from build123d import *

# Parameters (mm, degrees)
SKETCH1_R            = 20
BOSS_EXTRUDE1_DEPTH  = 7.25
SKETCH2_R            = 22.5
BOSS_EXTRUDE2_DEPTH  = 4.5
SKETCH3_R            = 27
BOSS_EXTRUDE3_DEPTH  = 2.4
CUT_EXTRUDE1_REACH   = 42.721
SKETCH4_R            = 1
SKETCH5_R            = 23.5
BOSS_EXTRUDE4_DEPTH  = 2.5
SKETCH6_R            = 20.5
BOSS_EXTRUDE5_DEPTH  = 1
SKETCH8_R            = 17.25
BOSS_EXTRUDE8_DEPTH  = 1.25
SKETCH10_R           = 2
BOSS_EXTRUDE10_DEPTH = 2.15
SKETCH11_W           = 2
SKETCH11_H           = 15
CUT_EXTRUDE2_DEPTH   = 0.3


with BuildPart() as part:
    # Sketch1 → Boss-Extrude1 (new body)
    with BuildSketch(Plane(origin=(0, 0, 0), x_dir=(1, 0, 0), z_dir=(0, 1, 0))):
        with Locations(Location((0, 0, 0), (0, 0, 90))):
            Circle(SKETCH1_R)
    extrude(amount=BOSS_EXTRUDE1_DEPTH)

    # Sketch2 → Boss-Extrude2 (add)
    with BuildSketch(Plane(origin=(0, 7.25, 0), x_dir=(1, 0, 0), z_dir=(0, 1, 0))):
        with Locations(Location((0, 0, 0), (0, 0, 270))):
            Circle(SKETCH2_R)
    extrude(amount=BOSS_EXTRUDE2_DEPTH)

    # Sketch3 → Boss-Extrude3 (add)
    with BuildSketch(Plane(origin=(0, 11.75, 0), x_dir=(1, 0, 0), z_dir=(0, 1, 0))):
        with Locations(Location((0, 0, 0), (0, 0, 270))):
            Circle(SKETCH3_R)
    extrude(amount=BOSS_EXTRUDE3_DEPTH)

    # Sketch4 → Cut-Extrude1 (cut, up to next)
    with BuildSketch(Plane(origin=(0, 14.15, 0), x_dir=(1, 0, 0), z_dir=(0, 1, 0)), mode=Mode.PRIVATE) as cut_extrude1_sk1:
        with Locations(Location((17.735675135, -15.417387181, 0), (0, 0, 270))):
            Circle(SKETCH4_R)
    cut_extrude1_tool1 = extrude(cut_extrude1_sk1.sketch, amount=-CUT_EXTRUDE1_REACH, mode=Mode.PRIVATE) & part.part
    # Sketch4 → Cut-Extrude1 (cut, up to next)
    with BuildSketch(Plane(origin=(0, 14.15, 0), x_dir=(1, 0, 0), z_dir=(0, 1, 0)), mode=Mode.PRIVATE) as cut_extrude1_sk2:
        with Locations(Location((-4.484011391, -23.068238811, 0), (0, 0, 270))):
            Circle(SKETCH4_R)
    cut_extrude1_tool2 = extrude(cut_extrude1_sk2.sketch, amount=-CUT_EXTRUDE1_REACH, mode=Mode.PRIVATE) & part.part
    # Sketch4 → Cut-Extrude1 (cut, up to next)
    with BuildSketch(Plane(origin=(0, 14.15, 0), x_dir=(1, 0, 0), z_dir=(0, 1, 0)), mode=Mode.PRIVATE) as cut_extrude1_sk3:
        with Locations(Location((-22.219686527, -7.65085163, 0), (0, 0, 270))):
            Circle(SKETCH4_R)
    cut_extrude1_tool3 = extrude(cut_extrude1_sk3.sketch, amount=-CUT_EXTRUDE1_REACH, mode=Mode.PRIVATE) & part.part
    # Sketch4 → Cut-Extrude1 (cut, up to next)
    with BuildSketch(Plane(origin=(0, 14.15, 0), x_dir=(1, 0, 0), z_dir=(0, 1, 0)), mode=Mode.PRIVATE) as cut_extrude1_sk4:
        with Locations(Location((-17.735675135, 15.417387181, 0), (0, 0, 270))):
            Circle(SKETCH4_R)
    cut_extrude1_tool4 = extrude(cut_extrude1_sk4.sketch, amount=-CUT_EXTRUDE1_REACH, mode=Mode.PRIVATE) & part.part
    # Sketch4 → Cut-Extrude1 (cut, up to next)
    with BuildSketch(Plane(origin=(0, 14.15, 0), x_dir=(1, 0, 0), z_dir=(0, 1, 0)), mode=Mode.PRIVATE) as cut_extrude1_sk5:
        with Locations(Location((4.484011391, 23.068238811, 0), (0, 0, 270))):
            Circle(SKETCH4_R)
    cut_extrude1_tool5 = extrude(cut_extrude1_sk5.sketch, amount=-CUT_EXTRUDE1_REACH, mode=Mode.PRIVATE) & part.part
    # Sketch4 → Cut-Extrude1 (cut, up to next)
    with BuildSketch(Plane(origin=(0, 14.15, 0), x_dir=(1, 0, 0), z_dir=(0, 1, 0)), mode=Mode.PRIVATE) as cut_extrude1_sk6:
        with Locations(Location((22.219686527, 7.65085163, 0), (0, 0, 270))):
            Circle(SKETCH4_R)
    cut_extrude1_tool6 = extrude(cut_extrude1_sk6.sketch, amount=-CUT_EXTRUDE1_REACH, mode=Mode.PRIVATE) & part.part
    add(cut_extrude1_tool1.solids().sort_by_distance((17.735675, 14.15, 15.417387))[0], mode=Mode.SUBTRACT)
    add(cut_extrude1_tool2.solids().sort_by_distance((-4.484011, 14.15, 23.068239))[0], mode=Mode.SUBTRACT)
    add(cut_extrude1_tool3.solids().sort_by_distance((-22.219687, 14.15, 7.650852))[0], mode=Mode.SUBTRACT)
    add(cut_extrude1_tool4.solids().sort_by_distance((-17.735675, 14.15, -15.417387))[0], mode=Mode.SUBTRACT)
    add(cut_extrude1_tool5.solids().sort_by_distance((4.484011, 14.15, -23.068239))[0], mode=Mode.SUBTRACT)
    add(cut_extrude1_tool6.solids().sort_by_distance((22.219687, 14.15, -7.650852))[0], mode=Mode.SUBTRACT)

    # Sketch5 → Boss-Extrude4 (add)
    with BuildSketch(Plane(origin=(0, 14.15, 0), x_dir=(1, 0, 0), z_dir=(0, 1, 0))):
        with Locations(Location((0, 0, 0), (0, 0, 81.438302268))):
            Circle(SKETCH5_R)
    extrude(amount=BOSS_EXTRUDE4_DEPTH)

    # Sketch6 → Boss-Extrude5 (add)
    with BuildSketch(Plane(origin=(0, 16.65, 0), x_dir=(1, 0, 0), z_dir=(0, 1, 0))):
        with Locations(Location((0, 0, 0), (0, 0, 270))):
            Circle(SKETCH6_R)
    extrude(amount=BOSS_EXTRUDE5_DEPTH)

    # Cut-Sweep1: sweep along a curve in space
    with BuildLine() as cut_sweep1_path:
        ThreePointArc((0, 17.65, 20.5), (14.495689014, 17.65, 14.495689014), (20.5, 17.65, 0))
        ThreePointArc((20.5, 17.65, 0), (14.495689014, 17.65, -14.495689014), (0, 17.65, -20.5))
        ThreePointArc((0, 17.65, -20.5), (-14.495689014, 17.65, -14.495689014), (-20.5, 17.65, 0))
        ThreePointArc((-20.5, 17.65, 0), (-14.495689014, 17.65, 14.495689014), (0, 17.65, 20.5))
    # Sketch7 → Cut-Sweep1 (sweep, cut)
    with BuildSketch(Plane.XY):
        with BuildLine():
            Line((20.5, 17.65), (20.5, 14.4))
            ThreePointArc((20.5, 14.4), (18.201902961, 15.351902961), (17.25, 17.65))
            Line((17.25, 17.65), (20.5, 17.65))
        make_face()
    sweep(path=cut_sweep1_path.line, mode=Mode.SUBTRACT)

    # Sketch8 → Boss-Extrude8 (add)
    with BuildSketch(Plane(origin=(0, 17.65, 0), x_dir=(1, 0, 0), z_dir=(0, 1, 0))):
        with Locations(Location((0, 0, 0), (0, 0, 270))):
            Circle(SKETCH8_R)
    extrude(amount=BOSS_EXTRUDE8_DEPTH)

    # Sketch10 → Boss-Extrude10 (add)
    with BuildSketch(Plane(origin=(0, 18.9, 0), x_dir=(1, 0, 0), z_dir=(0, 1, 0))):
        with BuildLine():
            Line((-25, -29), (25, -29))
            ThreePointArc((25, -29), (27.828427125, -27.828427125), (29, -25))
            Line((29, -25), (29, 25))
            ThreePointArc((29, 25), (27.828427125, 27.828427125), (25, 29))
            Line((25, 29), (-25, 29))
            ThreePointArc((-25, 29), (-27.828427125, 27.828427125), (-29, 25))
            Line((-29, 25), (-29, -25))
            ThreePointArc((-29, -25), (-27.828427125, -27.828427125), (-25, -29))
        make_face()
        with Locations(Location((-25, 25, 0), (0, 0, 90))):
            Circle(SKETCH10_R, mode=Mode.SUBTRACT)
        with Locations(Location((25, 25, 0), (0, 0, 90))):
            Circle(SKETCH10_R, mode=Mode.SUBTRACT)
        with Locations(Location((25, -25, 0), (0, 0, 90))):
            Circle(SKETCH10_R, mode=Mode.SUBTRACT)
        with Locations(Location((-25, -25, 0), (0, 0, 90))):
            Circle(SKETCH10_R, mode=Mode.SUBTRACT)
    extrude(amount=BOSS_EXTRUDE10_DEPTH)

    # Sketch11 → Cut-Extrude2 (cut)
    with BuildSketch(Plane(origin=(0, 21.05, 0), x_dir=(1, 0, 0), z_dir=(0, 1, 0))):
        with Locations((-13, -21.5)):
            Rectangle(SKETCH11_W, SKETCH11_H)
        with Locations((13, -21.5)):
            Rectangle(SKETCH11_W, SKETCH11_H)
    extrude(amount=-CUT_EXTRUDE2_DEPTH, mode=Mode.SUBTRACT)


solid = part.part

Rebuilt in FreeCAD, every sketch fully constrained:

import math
import FreeCAD as App
import Part
import Sketcher
from FreeCAD import Vector

doc = App.newDocument("Part")
body = doc.addObject("PartDesign::Body", "Body")

sketch1 = body.newObject("Sketcher::SketchObject", "Sketch")
sketch1.AttachmentSupport = (doc.getObject("XZ_Plane"), [""])
sketch1.MapMode = "FlatFace"
sketch1.addGeometry(Part.Circle(Vector(0, 0, 0), Vector(0, 0, 1), 20), False)
sketch1.addConstraint([
    Sketcher.Constraint("Coincident", 0, 3, -1, 1),
    Sketcher.Constraint("Diameter", 0, 40.0),
])
pad1 = body.newObject("PartDesign::Pad", "Pad")
pad1.Profile = sketch1
pad1.Length = 7.25
pad1.Reversed = True

sketch2 = body.newObject("Sketcher::SketchObject", "Sketch001")
sketch2.AttachmentSupport = (doc.getObject("XZ_Plane"), [""])
sketch2.MapMode = "FlatFace"
sketch2.AttachmentOffset = App.Placement(Vector(0, 0, -7.25), App.Rotation())
sketch2.addGeometry(Part.Circle(Vector(0, 0, 0), Vector(0, 0, 1), 22), False)
sketch2.addConstraint([
    Sketcher.Constraint("Coincident", 0, 3, -1, 1),
    Sketcher.Constraint("Diameter", 0, 45.0),
])
pad2 = body.newObject("PartDesign::Pad", "Pad001")
pad2.Profile = sketch2
pad2.Length = 4.5
pad2.Reversed = True

sketch3 = body.newObject("Sketcher::SketchObject", "Sketch002")
sketch3.AttachmentSupport = (doc.getObject("XZ_Plane"), [""])
sketch3.MapMode = "FlatFace"
sketch3.AttachmentOffset = App.Placement(Vector(0, 0, -11.75), App.Rotation())
sketch3.addGeometry(Part.Circle(Vector(0, 0, 0), Vector(0, 0, 1), 27), False)
sketch3.addConstraint([
    Sketcher.Constraint("Coincident", 0, 3, -1, 1),
    Sketcher.Constraint("Diameter", 0, 54.0),
])
pad3 = body.newObject("PartDesign::Pad", "Pad002")
pad3.Profile = sketch3
pad3.Length = 2.4
pad3.Reversed = True

sketch4 = body.newObject("Sketcher::SketchObject", "Sketch003")
sketch4.AttachmentSupport = (doc.getObject("XZ_Plane"), [""])
sketch4.MapMode = "FlatFace"
sketch4.AttachmentOffset = App.Placement(Vector(0, 0, -14.15), App.Rotation())
sketch4.addGeometry(Part.Circle(Vector(17.7, 15.4, 0), Vector(0, 0, 1), 1), False)
sketch4.addConstraint([
    Sketcher.Constraint("Diameter", 0, 2.0),
    Sketcher.Constraint("DistanceX", -1, 1, 0, 3, 17.735675),
    Sketcher.Constraint("DistanceY", -1, 1, 0, 3, 15.417387),
])
pocket1 = body.newObject("PartDesign::Pocket", "Pocket")
pocket1.Profile = sketch4
pocket1.Type = "UpToFirst"
pocket1.Reversed = True

sketch5 = body.newObject("Sketcher::SketchObject", "Sketch004")
sketch5.AttachmentSupport = (doc.getObject("XZ_Plane"), [""])
sketch5.MapMode = "FlatFace"
sketch5.AttachmentOffset = App.Placement(Vector(0, 0, -14.15), App.Rotation())
sketch5.addGeometry(Part.Circle(Vector(-4.5, 23.1, 0), Vector(0, 0, 1), 1), False)
sketch5.addConstraint([
    Sketcher.Constraint("Diameter", 0, 2.0),
    Sketcher.Constraint("DistanceX", 0, 3, -1, 1, 4.484011),
    Sketcher.Constraint("DistanceY", -1, 1, 0, 3, 23.068239),
])
pocket2 = body.newObject("PartDesign::Pocket", "Pocket001")
pocket2.Profile = sketch5
pocket2.Type = "UpToFirst"
pocket2.Reversed = True

sketch6 = body.newObject("Sketcher::SketchObject", "Sketch005")
sketch6.AttachmentSupport = (doc.getObject("XZ_Plane"), [""])
sketch6.MapMode = "FlatFace"
sketch6.AttachmentOffset = App.Placement(Vector(0, 0, -14.15), App.Rotation())
sketch6.addGeometry(Part.Circle(Vector(-22.2, 7.7, 0), Vector(0, 0, 1), 1), False)
sketch6.addConstraint([
    Sketcher.Constraint("Diameter", 0, 2.0),
    Sketcher.Constraint("DistanceY", -1, 1, 0, 3, 7.650852),
    Sketcher.Constraint("DistanceX", 0, 3, -1, 1, 22.219687),
])
pocket3 = body.newObject("PartDesign::Pocket", "Pocket002")
pocket3.Profile = sketch6
pocket3.Type = "UpToFirst"
pocket3.Reversed = True

sketch7 = body.newObject("Sketcher::SketchObject", "Sketch006")
sketch7.AttachmentSupport = (doc.getObject("XZ_Plane"), [""])
sketch7.MapMode = "FlatFace"
sketch7.AttachmentOffset = App.Placement(Vector(0, 0, -14.15), App.Rotation())
sketch7.addGeometry(Part.Circle(Vector(-17.7, -15.4, 0), Vector(0, 0, 1), 1), False)
sketch7.addConstraint([
    Sketcher.Constraint("Diameter", 0, 2.0),
    Sketcher.Constraint("DistanceX", 0, 3, -1, 1, 17.735675),
    Sketcher.Constraint("DistanceY", 0, 3, -1, 1, 15.417387),
])
pocket4 = body.newObject("PartDesign::Pocket", "Pocket003")
pocket4.Profile = sketch7
pocket4.Type = "UpToFirst"
pocket4.Reversed = True

sketch8 = body.newObject("Sketcher::SketchObject", "Sketch007")
sketch8.AttachmentSupport = (doc.getObject("XZ_Plane"), [""])
sketch8.MapMode = "FlatFace"
sketch8.AttachmentOffset = App.Placement(Vector(0, 0, -14.15), App.Rotation())
sketch8.addGeometry(Part.Circle(Vector(4.5, -23.1, 0), Vector(0, 0, 1), 1), False)
sketch8.addConstraint([
    Sketcher.Constraint("Diameter", 0, 2.0),
    Sketcher.Constraint("DistanceX", -1, 1, 0, 3, 4.484011),
    Sketcher.Constraint("DistanceY", 0, 3, -1, 1, 23.068239),
])
pocket5 = body.newObject("PartDesign::Pocket", "Pocket004")
pocket5.Profile = sketch8
pocket5.Type = "UpToFirst"
pocket5.Reversed = True

sketch9 = body.newObject("Sketcher::SketchObject", "Sketch008")
sketch9.AttachmentSupport = (doc.getObject("XZ_Plane"), [""])
sketch9.MapMode = "FlatFace"
sketch9.AttachmentOffset = App.Placement(Vector(0, 0, -14.15), App.Rotation())
sketch9.addGeometry(Part.Circle(Vector(22.2, -7.7, 0), Vector(0, 0, 1), 1), False)
sketch9.addConstraint([
    Sketcher.Constraint("Diameter", 0, 2.0),
    Sketcher.Constraint("DistanceY", 0, 3, -1, 1, 7.650852),
    Sketcher.Constraint("DistanceX", -1, 1, 0, 3, 22.219687),
])
pocket6 = body.newObject("PartDesign::Pocket", "Pocket005")
pocket6.Profile = sketch9
pocket6.Type = "UpToFirst"
pocket6.Reversed = True

sketch10 = body.newObject("Sketcher::SketchObject", "Sketch009")
sketch10.AttachmentSupport = (doc.getObject("XZ_Plane"), [""])
sketch10.MapMode = "FlatFace"
sketch10.AttachmentOffset = App.Placement(Vector(0, 0, -14.15), App.Rotation())
sketch10.addGeometry(Part.Circle(Vector(0, 0, 0), Vector(0, 0, 1), 24), False)
sketch10.addConstraint([
    Sketcher.Constraint("Coincident", 0, 3, -1, 1),
    Sketcher.Constraint("Diameter", 0, 47.0),
])
pad4 = body.newObject("PartDesign::Pad", "Pad003")
pad4.Profile = sketch10
pad4.Length = 2.5
pad4.Reversed = True

sketch11 = body.newObject("Sketcher::SketchObject", "Sketch010")
sketch11.AttachmentSupport = (doc.getObject("XZ_Plane"), [""])
sketch11.MapMode = "FlatFace"
sketch11.AttachmentOffset = App.Placement(Vector(0, 0, -16.65), App.Rotation())
sketch11.addGeometry(Part.Circle(Vector(0, 0, 0), Vector(0, 0, 1), 20), False)
sketch11.addConstraint([
    Sketcher.Constraint("Coincident", 0, 3, -1, 1),
    Sketcher.Constraint("Diameter", 0, 41.0),
])
pad5 = body.newObject("PartDesign::Pad", "Pad004")
pad5.Profile = sketch11
pad5.Length = 1
pad5.Reversed = True

sketch12 = body.newObject("Sketcher::SketchObject", "Sketch011")
sketch12.AttachmentSupport = (doc.getObject("XY_Plane"), [""])
sketch12.MapMode = "FlatFace"
sketch12.addGeometry([
    Part.LineSegment(Vector(20.5, 14.4, 0), Vector(20.5, 17.6, 0)),
    Part.LineSegment(Vector(20.5, 17.6, 0), Vector(17.2, 17.6, 0)),
    Part.ArcOfCircle(Part.Circle(Vector(20.5, 17.6, 0), Vector(0, 0, 1), 3.2), math.radians(180), math.radians(270)),
], False)
sketch12.addConstraint([
    Sketcher.Constraint("Coincident", 0, 2, 1, 1),
    Sketcher.Constraint("Coincident", 1, 2, 2, 1),
    Sketcher.Constraint("Coincident", 2, 2, 0, 1),
    Sketcher.Constraint("Vertical", 0),
    Sketcher.Constraint("Horizontal", 1),
    Sketcher.Constraint("Coincident", 0, 2, 2, 3),
    Sketcher.Constraint("Radius", 2, 3.25),
    Sketcher.Constraint("DistanceX", -1, 1, 2, 3, 20.5),
    Sketcher.Constraint("DistanceY", -1, 1, 2, 2, 14.4),
])

sketch13 = body.newObject("Sketcher::SketchObject", "Sketch012")
sketch13.AttachmentSupport = (doc.getObject("XZ_Plane"), [""])
sketch13.MapMode = "FlatFace"
sketch13.AttachmentOffset = App.Placement(Vector(0, 0, -17.65), App.Rotation())
sketch13.addGeometry([
    Part.ArcOfCircle(Part.Circle(Vector(0, 0, 0), Vector(0, 0, 1), 21), math.radians(0), math.radians(90)),
    Part.ArcOfCircle(Part.Circle(Vector(0, 0, 0), Vector(0, 0, 1), 21), math.radians(-90), math.radians(0)),
    Part.ArcOfCircle(Part.Circle(Vector(0, 0, 0), Vector(0, 0, 1), 21), math.radians(-180), math.radians(-90)),
    Part.ArcOfCircle(Part.Circle(Vector(0, 0, 0), Vector(0, 0, 1), 21), math.radians(90), math.radians(180)),
], False)
sketch13.addConstraint([
    Sketcher.Constraint("Tangent", 0, 1, 1, 2),
    Sketcher.Constraint("Tangent", 1, 1, 2, 2),
    Sketcher.Constraint("Tangent", 2, 1, 3, 2),
    Sketcher.Constraint("Tangent", 3, 1, 0, 2),
    Sketcher.Constraint("Coincident", 0, 3, -1, 1),
    Sketcher.Constraint("Equal", 0, 1),
    Sketcher.Constraint("PointOnObject", 0, 1, -1),
    Sketcher.Constraint("PointOnObject", 1, 1, -2),
    Sketcher.Constraint("PointOnObject", 2, 1, -1),
    Sketcher.Constraint("PointOnObject", 3, 1, -2),
    Sketcher.Constraint("Radius", 0, 20.5),
])
doc.recompute()

subtractivepipe = body.newObject("PartDesign::SubtractivePipe", "SubtractivePipe")
subtractivepipe.Profile = sketch12
subtractivepipe.Spine = (sketch13, ["Edge1", "Edge2", "Edge3", "Edge4"])

sketch14 = body.newObject("Sketcher::SketchObject", "Sketch013")
sketch14.AttachmentSupport = (doc.getObject("XZ_Plane"), [""])
sketch14.MapMode = "FlatFace"
sketch14.AttachmentOffset = App.Placement(Vector(0, 0, -17.65), App.Rotation())
sketch14.addGeometry(Part.Circle(Vector(0, 0, 0), Vector(0, 0, 1), 17), False)
sketch14.addConstraint([
    Sketcher.Constraint("Coincident", 0, 3, -1, 1),
    Sketcher.Constraint("Diameter", 0, 34.5),
])
pad6 = body.newObject("PartDesign::Pad", "Pad005")
pad6.Profile = sketch14
pad6.Length = 1.25
pad6.Reversed = True

sketch15 = body.newObject("Sketcher::SketchObject", "Sketch014")
sketch15.AttachmentSupport = (doc.getObject("XZ_Plane"), [""])
sketch15.MapMode = "FlatFace"
sketch15.AttachmentOffset = App.Placement(Vector(0, 0, -18.9), App.Rotation())
sketch15.addGeometry([
    Part.LineSegment(Vector(-25, 29, 0), Vector(25, 29, 0)),
    Part.ArcOfCircle(Part.Circle(Vector(25, 25, 0), Vector(0, 0, 1), 4), math.radians(0), math.radians(90)),
    Part.LineSegment(Vector(29, 25, 0), Vector(29, -25, 0)),
    Part.ArcOfCircle(Part.Circle(Vector(25, -25, 0), Vector(0, 0, 1), 4), math.radians(-90), math.radians(0)),
    Part.LineSegment(Vector(25, -29, 0), Vector(-25, -29, 0)),
    Part.ArcOfCircle(Part.Circle(Vector(-25, -25, 0), Vector(0, 0, 1), 4), math.radians(180), math.radians(270)),
    Part.LineSegment(Vector(-29, -25, 0), Vector(-29, 25, 0)),
    Part.ArcOfCircle(Part.Circle(Vector(-25, 25, 0), Vector(0, 0, 1), 4), math.radians(90), math.radians(180)),
    Part.Circle(Vector(-25, 25, 0), Vector(0, 0, 1), 2),
    Part.Circle(Vector(25, 25, 0), Vector(0, 0, 1), 2),
    Part.Circle(Vector(-25, -25, 0), Vector(0, 0, 1), 2),
    Part.Circle(Vector(25, -25, 0), Vector(0, 0, 1), 2),
], False)
sketch15.addConstraint([
    Sketcher.Constraint("Tangent", 0, 2, 1, 2),
    Sketcher.Constraint("Tangent", 1, 1, 2, 1),
    Sketcher.Constraint("Tangent", 2, 2, 3, 2),
    Sketcher.Constraint("Tangent", 3, 1, 4, 1),
    Sketcher.Constraint("Tangent", 4, 2, 5, 2),
    Sketcher.Constraint("Tangent", 5, 1, 6, 1),
    Sketcher.Constraint("Tangent", 6, 2, 7, 2),
    Sketcher.Constraint("Tangent", 7, 1, 0, 1),
    Sketcher.Constraint("Horizontal", 0),
    Sketcher.Constraint("Vertical", 2),
    Sketcher.Constraint("Horizontal", 4),
    Sketcher.Constraint("Vertical", 6),
    Sketcher.Constraint("Coincident", 8, 3, 7, 3),
    Sketcher.Constraint("Coincident", 9, 3, 1, 3),
    Sketcher.Constraint("Coincident", 10, 3, 5, 3),
    Sketcher.Constraint("Coincident", 11, 3, 3, 3),
    Sketcher.Constraint("Equal", 1, 3),
    Sketcher.Constraint("Equal", 3, 5),
    Sketcher.Constraint("Equal", 5, 7),
    Sketcher.Constraint("Equal", 8, 9),
    Sketcher.Constraint("Equal", 9, 10),
    Sketcher.Constraint("Equal", 10, 11),
    Sketcher.Constraint("Symmetric", 1, 3, 5, 3, -1, 1),
    Sketcher.Constraint("Equal", 4, 2),
    Sketcher.Constraint("Diameter", 8, 4.0),
    Sketcher.Constraint("Radius", 1, 4.0),
    Sketcher.Constraint("DistanceX", 0, 1, 0, 2, 50.0),
])
pad7 = body.newObject("PartDesign::Pad", "Pad006")
pad7.Profile = sketch15
pad7.Length = 2.15
pad7.Reversed = True

sketch16 = body.newObject("Sketcher::SketchObject", "Sketch015")
sketch16.AttachmentSupport = (doc.getObject("XZ_Plane"), [""])
sketch16.MapMode = "FlatFace"
sketch16.AttachmentOffset = App.Placement(Vector(0, 0, -21.05), App.Rotation())
sketch16.addGeometry([
    Part.LineSegment(Vector(-14, 14, 0), Vector(-14, 29, 0)),
    Part.LineSegment(Vector(-14, 29, 0), Vector(-12, 29, 0)),
    Part.LineSegment(Vector(-12, 29, 0), Vector(-12, 14, 0)),
    Part.LineSegment(Vector(-12, 14, 0), Vector(-14, 14, 0)),
    Part.LineSegment(Vector(12, 14, 0), Vector(12, 29, 0)),
    Part.LineSegment(Vector(12, 29, 0), Vector(14, 29, 0)),
    Part.LineSegment(Vector(14, 29, 0), Vector(14, 14, 0)),
    Part.LineSegment(Vector(14, 14, 0), Vector(12, 14, 0)),
], False)
sketch16.addConstraint([
    Sketcher.Constraint("Coincident", 0, 2, 1, 1),
    Sketcher.Constraint("Coincident", 1, 2, 2, 1),
    Sketcher.Constraint("Coincident", 2, 2, 3, 1),
    Sketcher.Constraint("Coincident", 3, 2, 0, 1),
    Sketcher.Constraint("Coincident", 4, 2, 5, 1),
    Sketcher.Constraint("Coincident", 5, 2, 6, 1),
    Sketcher.Constraint("Coincident", 6, 2, 7, 1),
    Sketcher.Constraint("Coincident", 7, 2, 4, 1),
    Sketcher.Constraint("Vertical", 0),
    Sketcher.Constraint("Horizontal", 1),
    Sketcher.Constraint("Vertical", 2),
    Sketcher.Constraint("Horizontal", 3),
    Sketcher.Constraint("Vertical", 4),
    Sketcher.Constraint("Horizontal", 5),
    Sketcher.Constraint("Vertical", 6),
    Sketcher.Constraint("Horizontal", 7),
    Sketcher.Constraint("Symmetric", 1, 2, 4, 2, -2),
    Sketcher.Constraint("Symmetric", 3, 2, 6, 2, -2),
    Sketcher.Constraint("DistanceX", 1, 1, 1, 2, 2.0),
    Sketcher.Constraint("DistanceY", 0, 1, 0, 2, 15.0),
    Sketcher.Constraint("DistanceX", 0, 2, -1, 1, 14.0),
    Sketcher.Constraint("DistanceY", -1, 1, 0, 2, 29.0),
])
pocket7 = body.newObject("PartDesign::Pocket", "Pocket006")
pocket7.Profile = sketch16
pocket7.Length = 0.3
pocket7.Reversed = True

doc.recompute()
